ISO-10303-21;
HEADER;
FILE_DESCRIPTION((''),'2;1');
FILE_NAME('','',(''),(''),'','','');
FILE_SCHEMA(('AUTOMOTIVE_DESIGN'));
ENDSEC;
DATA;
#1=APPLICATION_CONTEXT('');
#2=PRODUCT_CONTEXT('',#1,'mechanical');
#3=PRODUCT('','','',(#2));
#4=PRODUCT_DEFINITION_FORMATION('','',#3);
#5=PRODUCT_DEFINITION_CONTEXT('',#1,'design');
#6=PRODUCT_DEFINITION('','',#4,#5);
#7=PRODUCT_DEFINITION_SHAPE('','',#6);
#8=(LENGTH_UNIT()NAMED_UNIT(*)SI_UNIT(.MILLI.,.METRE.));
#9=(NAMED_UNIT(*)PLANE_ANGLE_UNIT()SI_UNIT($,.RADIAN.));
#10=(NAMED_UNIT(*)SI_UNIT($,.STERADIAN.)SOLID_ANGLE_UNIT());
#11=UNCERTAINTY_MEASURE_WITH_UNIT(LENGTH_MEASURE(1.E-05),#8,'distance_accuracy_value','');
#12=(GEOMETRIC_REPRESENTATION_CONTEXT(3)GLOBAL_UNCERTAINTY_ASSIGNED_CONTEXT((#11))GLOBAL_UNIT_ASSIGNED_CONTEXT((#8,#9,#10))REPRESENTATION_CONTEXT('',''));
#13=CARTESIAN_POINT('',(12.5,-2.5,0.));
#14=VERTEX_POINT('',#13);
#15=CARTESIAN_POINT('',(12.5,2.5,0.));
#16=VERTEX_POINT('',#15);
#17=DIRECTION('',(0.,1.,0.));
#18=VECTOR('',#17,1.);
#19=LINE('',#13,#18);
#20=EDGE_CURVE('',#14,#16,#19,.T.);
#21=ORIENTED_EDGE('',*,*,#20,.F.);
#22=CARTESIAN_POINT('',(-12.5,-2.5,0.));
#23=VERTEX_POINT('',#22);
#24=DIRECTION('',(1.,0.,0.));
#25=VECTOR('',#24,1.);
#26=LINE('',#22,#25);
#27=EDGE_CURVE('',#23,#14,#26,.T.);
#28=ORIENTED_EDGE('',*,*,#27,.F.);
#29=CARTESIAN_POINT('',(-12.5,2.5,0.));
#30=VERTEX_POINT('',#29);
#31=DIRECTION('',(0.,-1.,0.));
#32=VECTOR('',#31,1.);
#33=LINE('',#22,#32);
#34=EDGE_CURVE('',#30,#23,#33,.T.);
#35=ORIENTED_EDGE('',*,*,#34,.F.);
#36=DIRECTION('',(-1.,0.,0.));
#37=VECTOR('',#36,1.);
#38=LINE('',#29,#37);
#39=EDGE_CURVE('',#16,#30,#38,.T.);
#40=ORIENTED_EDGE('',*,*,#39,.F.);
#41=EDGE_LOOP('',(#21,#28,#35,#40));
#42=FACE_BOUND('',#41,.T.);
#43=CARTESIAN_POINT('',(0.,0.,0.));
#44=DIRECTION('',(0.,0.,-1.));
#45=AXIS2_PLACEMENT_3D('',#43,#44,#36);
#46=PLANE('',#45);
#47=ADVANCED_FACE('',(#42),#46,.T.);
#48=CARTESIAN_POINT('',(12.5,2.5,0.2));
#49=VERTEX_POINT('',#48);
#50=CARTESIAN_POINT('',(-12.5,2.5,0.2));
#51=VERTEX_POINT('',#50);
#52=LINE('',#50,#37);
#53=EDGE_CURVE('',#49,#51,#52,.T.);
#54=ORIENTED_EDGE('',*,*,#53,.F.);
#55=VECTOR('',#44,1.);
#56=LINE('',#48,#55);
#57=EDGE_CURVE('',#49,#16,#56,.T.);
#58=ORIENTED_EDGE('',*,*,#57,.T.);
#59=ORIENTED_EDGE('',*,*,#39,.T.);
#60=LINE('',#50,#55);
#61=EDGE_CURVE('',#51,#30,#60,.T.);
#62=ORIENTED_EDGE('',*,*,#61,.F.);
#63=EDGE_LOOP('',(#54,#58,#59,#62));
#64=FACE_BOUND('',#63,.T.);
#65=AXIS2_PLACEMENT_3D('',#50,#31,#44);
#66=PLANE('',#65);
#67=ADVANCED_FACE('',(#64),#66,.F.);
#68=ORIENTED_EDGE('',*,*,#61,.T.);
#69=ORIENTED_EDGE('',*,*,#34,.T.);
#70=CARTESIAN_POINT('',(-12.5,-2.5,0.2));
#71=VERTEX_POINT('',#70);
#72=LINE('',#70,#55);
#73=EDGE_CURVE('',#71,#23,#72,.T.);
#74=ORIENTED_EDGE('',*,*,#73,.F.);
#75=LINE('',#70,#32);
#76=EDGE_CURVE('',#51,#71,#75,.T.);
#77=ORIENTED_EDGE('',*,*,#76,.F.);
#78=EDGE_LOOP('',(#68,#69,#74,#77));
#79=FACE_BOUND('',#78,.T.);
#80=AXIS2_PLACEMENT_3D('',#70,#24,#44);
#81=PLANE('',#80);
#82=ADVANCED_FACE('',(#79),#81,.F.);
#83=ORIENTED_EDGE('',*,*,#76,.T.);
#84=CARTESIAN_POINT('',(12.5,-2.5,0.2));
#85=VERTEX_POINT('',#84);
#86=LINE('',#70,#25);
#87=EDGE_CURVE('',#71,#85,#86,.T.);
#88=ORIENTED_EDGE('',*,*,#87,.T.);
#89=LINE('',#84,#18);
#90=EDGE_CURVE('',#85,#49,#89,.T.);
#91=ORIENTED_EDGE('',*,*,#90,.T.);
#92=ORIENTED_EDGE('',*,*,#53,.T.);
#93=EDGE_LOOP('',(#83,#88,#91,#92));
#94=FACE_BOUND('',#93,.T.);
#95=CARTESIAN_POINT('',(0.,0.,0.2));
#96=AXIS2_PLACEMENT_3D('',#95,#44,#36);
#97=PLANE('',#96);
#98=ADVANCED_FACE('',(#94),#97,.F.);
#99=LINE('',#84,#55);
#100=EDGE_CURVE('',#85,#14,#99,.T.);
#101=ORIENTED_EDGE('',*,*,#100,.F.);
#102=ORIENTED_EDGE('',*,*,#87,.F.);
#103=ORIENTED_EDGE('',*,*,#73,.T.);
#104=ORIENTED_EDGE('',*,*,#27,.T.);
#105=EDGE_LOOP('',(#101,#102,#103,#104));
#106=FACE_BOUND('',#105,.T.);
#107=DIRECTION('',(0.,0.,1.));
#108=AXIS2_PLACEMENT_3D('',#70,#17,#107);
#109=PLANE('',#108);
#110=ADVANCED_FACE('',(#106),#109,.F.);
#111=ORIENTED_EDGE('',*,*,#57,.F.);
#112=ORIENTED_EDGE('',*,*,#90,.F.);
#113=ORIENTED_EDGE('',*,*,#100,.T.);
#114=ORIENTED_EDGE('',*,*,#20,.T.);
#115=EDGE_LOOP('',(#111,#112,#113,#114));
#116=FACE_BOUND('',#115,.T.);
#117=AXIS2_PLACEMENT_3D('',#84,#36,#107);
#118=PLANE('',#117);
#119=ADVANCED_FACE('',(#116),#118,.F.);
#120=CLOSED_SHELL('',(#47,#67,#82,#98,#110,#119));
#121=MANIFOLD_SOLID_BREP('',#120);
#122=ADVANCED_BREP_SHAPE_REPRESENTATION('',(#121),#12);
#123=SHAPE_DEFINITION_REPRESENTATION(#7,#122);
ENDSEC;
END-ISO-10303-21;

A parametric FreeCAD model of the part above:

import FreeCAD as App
import Part
import Sketcher
Q = App.Units.Quantity

doc = App.newDocument("Part")
body = doc.addObject("PartDesign::Body", "Body")

sketch1 = body.newObject("Sketcher::SketchObject", "Sketch")
sketch1.AttachmentSupport = (doc.getObject("XY_Plane"), [""])
sketch1.MapMode = "FlatFace"
sketch1.addGeometry([
    Part.LineSegment(App.Vector(-12, 2, 0), App.Vector(-12, -2, 0)),
    Part.LineSegment(App.Vector(-12, -2, 0), App.Vector(12, -2, 0)),
    Part.LineSegment(App.Vector(12, -2, 0), App.Vector(12, 2, 0)),
    Part.LineSegment(App.Vector(12, 2, 0), App.Vector(-12, 2, 0)),
], False)
sketch1.addConstraint([
    Sketcher.Constraint("Coincident", 0, 2, 1, 1),
    Sketcher.Constraint("Coincident", 1, 2, 2, 1),
    Sketcher.Constraint("Coincident", 2, 2, 3, 1),
    Sketcher.Constraint("Coincident", 3, 2, 0, 1),
    Sketcher.Constraint("Vertical", 0),
    Sketcher.Constraint("Horizontal", 1),
    Sketcher.Constraint("Vertical", 2),
    Sketcher.Constraint("Horizontal", 3),
    Sketcher.Constraint("Symmetric", 0, 2, 2, 2, -1, 1),
    Sketcher.Constraint("DistanceX", 1, 1, 1, 2, Q("25 mm")),
    Sketcher.Constraint("DistanceY", 0, 2, 0, 1, Q("5 mm")),
])
pad1 = body.newObject("PartDesign::Pad", "Pad")
pad1.Profile = sketch1
pad1.Length = 0.2

doc.recompute()
